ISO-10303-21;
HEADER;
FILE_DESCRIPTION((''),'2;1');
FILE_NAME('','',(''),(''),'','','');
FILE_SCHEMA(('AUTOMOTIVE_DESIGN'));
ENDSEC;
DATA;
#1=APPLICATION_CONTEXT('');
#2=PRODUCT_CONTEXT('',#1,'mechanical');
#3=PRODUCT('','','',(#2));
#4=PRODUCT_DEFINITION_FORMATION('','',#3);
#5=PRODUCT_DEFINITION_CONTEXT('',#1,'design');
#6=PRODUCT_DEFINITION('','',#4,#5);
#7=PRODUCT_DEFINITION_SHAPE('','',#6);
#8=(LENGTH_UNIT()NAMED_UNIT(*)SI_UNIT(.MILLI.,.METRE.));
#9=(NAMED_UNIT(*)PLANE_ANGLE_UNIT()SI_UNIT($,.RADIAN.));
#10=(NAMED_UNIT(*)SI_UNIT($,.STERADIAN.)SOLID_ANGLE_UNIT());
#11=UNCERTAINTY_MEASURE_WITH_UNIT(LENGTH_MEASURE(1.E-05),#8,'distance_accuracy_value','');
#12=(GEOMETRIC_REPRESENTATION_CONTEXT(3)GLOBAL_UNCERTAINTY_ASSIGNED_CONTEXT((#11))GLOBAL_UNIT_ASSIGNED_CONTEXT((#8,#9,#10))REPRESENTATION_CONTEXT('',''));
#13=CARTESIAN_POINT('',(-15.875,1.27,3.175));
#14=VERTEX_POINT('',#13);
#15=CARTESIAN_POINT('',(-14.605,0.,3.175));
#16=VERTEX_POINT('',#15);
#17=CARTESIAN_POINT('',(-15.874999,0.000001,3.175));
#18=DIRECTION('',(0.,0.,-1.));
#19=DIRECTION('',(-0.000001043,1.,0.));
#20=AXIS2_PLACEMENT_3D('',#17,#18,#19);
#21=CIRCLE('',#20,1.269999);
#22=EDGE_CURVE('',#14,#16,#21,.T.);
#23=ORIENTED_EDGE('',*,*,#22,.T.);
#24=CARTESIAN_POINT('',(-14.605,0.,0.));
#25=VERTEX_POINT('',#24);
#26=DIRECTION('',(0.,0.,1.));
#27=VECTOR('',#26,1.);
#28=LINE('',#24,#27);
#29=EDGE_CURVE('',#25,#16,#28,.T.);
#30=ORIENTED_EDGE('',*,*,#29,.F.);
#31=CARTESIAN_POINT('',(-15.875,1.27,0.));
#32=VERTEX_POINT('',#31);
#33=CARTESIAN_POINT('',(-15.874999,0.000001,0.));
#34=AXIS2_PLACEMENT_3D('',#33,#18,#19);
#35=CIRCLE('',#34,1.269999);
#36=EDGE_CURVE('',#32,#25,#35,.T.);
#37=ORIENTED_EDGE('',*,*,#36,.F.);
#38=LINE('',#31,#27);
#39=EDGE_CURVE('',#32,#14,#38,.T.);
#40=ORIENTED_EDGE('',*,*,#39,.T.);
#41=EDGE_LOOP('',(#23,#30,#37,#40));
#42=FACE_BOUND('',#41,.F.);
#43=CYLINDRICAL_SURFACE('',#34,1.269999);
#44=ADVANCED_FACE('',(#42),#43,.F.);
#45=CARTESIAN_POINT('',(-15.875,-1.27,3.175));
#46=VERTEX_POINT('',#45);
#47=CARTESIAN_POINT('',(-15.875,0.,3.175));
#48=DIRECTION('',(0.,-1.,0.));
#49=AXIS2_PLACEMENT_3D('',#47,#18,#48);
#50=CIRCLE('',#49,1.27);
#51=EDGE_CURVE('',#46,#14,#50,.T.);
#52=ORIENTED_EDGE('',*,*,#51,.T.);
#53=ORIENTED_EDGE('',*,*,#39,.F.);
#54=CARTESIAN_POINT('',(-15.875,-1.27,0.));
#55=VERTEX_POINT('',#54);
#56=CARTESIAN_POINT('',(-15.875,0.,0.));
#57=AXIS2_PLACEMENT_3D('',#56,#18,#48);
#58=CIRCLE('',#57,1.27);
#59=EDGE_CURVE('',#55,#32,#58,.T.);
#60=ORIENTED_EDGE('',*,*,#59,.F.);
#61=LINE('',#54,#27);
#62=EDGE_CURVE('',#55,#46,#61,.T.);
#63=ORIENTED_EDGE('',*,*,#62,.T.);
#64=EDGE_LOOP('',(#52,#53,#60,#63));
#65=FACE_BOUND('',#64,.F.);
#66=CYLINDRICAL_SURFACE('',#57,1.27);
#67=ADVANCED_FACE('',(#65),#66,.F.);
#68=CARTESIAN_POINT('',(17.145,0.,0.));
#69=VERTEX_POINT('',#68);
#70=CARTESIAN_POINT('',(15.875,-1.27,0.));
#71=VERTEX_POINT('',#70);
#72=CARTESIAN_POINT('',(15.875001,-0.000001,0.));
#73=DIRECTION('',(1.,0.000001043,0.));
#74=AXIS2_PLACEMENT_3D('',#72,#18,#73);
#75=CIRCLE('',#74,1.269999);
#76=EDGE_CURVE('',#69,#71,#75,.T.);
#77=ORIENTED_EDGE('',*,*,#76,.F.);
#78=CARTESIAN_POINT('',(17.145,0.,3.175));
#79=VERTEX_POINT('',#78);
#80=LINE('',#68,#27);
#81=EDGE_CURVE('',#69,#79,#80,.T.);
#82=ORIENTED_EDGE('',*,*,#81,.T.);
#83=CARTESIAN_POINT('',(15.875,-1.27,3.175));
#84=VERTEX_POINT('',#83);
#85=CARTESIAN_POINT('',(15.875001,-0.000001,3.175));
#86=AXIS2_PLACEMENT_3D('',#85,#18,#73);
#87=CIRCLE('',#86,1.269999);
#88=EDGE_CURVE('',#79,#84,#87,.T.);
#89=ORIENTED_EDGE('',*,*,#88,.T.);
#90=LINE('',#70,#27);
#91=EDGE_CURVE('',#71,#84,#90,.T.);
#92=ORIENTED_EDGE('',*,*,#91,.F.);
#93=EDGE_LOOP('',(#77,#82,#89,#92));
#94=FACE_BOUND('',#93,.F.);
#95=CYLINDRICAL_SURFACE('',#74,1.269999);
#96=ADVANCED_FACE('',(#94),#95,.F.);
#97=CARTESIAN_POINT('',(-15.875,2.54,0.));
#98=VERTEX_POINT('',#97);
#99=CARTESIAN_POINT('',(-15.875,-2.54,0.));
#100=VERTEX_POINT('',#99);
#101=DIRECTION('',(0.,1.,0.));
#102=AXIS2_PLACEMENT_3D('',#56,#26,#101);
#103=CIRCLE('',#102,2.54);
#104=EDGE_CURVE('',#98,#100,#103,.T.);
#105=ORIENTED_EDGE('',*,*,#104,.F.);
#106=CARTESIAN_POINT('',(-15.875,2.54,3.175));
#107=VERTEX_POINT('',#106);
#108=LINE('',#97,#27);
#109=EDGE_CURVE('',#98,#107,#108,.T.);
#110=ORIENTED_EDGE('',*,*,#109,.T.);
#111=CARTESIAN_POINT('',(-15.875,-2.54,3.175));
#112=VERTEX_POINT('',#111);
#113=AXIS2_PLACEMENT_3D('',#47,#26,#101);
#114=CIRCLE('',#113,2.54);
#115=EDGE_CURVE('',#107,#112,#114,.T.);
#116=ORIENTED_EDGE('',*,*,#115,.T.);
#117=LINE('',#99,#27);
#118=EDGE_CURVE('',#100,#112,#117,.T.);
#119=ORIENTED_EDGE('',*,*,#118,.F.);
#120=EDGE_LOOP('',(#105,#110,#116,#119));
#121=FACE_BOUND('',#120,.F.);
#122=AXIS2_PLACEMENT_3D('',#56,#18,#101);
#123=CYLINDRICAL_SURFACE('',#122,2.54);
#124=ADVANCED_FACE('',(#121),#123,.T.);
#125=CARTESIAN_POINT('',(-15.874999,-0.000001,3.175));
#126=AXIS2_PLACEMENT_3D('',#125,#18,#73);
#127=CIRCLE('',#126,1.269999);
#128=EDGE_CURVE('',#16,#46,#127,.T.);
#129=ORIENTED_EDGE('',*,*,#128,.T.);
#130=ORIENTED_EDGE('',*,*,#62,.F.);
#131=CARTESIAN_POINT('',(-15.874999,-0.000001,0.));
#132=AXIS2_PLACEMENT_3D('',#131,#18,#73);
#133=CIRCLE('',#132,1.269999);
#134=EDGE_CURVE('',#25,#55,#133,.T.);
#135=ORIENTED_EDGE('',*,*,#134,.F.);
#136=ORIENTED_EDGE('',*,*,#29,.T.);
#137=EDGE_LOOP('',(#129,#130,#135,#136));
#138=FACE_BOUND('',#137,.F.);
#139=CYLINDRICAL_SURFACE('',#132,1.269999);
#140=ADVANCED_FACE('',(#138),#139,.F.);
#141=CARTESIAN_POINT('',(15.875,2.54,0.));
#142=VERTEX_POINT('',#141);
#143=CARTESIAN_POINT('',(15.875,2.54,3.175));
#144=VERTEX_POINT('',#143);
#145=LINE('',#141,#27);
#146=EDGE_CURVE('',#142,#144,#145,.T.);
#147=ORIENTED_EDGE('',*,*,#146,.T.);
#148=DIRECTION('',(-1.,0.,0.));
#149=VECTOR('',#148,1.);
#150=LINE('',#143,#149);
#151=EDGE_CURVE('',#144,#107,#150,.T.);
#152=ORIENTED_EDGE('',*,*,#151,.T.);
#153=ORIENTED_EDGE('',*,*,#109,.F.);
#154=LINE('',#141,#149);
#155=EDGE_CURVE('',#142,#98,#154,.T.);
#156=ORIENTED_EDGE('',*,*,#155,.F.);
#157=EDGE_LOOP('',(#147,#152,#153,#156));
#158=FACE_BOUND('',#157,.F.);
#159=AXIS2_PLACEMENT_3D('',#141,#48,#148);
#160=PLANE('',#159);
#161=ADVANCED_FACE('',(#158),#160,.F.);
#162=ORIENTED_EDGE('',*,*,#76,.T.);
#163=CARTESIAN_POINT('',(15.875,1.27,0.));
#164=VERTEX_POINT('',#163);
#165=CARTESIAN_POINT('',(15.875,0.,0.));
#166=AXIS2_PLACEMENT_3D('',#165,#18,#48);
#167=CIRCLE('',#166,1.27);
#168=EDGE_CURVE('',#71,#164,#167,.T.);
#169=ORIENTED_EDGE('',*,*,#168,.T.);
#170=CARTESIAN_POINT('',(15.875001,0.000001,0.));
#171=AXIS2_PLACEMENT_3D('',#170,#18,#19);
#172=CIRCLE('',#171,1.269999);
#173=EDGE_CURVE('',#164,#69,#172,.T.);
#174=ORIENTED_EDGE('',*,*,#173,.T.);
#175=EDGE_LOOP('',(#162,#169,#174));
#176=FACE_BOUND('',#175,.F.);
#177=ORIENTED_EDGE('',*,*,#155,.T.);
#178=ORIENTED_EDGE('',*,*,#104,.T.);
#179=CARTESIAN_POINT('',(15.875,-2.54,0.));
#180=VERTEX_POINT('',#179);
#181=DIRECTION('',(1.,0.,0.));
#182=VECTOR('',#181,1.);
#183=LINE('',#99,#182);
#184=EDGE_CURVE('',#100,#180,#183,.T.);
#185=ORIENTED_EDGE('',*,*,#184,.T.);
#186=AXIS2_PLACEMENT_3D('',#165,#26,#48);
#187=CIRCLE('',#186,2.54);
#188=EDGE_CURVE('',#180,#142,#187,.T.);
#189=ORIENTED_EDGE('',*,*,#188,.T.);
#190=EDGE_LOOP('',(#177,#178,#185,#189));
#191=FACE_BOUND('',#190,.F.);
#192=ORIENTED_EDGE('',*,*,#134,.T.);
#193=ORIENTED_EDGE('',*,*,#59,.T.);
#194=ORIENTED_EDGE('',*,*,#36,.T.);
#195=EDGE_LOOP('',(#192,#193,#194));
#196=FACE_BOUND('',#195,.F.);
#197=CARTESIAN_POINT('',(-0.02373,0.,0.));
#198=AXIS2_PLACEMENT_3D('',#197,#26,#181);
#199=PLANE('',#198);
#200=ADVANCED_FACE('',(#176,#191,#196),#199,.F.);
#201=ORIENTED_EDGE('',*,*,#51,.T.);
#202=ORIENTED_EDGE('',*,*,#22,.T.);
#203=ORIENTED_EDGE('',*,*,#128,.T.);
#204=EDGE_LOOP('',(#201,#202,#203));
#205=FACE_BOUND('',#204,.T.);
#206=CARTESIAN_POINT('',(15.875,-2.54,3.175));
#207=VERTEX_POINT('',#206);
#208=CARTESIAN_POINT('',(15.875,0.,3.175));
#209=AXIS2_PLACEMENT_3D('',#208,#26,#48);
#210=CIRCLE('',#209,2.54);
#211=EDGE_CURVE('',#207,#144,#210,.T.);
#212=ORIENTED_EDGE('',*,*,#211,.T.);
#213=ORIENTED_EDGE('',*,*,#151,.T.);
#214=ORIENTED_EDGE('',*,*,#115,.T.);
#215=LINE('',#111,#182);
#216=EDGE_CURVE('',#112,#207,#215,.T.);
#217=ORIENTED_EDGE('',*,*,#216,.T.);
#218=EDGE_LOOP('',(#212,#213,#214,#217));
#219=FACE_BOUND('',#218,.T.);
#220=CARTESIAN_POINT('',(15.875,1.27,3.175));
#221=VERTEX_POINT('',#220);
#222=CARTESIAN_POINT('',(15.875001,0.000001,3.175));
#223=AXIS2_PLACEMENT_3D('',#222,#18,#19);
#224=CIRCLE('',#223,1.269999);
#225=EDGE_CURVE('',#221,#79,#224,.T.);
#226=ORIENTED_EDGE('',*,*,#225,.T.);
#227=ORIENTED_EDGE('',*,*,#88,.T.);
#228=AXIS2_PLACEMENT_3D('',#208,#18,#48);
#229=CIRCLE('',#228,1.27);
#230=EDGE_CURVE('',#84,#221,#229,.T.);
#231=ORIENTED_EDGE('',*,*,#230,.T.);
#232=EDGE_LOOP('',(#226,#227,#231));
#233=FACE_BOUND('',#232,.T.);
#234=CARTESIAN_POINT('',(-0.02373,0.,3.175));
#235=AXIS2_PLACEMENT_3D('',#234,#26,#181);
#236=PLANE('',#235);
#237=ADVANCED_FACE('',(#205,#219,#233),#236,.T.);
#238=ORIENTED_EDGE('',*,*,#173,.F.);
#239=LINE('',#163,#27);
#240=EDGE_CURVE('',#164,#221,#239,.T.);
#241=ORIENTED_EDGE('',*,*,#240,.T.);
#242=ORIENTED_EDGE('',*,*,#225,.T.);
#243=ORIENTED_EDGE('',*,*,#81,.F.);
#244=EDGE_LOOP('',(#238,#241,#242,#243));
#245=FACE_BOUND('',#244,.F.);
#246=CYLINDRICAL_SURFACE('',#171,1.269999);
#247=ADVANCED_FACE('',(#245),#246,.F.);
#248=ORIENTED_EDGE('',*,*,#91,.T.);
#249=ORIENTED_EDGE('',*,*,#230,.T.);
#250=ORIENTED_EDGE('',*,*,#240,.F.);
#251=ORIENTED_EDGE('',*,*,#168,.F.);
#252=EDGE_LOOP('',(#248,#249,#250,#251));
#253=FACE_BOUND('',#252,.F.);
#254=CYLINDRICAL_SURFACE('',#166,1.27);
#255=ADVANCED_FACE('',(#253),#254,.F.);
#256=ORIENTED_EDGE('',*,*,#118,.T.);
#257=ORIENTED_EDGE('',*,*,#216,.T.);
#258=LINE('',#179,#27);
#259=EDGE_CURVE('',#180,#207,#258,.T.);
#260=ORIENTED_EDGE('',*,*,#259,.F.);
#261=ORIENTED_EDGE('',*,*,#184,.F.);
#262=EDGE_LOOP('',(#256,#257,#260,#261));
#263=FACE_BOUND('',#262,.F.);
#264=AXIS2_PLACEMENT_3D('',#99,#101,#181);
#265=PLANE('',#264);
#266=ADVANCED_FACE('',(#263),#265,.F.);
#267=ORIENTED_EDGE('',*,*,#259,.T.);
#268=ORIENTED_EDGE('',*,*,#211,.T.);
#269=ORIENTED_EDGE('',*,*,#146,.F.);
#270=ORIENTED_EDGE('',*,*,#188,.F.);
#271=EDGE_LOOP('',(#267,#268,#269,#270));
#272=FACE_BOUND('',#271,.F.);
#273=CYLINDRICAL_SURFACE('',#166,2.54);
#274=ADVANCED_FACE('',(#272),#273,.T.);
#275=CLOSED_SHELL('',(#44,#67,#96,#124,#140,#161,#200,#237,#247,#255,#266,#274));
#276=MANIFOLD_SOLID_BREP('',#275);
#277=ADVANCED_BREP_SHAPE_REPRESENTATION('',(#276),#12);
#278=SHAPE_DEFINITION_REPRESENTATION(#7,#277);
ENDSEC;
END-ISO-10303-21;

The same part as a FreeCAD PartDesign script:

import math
import FreeCAD as App
import Part
import Sketcher
from FreeCAD import Vector
Q = App.Units.Quantity

doc = App.newDocument("Part")
body = doc.addObject("PartDesign::Body", "Body")

sketch1 = doc.addObject("Sketcher::SketchObject", "Sketch")
body.addObject(sketch1)
sketch1.AttachmentSupport = (doc.XY_Plane, [""])
sketch1.MapMode = "FlatFace"
sketch1.addGeometry(Part.LineSegment(Vector(15.875, 2.54, 0), Vector(-15.875, 2.54, 0)), False)
sketch1.addGeometry(Part.ArcOfCircle(Part.Circle(Vector(-15.875, 0, 0), Vector(0, 0, 1), 2.54), math.radians(90), math.radians(270)), False)
sketch1.addGeometry(Part.LineSegment(Vector(-15.875, -2.54, 0), Vector(15.875, -2.54, 0)), False)
sketch1.addGeometry(Part.ArcOfCircle(Part.Circle(Vector(15.875, 0, 0), Vector(0, 0, 1), 2.54), math.radians(-90), math.radians(90)), False)
sketch1.addGeometry(Part.ArcOfCircle(Part.Circle(Vector(-15.874999, 0.000001, 0), Vector(0, 0, 1), 1.269999), math.radians(-0.00006), math.radians(90.00006)), False)
sketch1.addGeometry(Part.ArcOfCircle(Part.Circle(Vector(-15.874999, -0.000001, 0), Vector(0, 0, 1), 1.269999), math.radians(-90.00006), math.radians(0.00006)), False)
sketch1.addGeometry(Part.ArcOfCircle(Part.Circle(Vector(-15.875, 0, 0), Vector(0, 0, 1), 1.27), math.radians(90), math.radians(270)), False)
sketch1.addGeometry(Part.ArcOfCircle(Part.Circle(Vector(15.875, 0, 0), Vector(0, 0, 1), 1.27), math.radians(90), math.radians(270)), False)
sketch1.addGeometry(Part.ArcOfCircle(Part.Circle(Vector(15.875001, 0.000001, 0), Vector(0, 0, 1), 1.269999), math.radians(-0.00006), math.radians(90.00006)), False)
sketch1.addGeometry(Part.ArcOfCircle(Part.Circle(Vector(15.875001, -0.000001, 0), Vector(0, 0, 1), 1.269999), math.radians(-90.00006), math.radians(0.00006)), False)
sketch1.addConstraint(Sketcher.Constraint("Tangent", 0, 2, 1, 1))
sketch1.addConstraint(Sketcher.Constraint("Tangent", 1, 2, 2, 1))
sketch1.addConstraint(Sketcher.Constraint("Tangent", 2, 2, 3, 1))
sketch1.addConstraint(Sketcher.Constraint("Tangent", 3, 2, 0, 1))
sketch1.addConstraint(Sketcher.Constraint("Coincident", 4, 1, 5, 2))
sketch1.addConstraint(Sketcher.Constraint("Tangent", 5, 1, 6, 2))
sketch1.addConstraint(Sketcher.Constraint("Tangent", 6, 1, 4, 2))
sketch1.addConstraint(Sketcher.Constraint("Tangent", 7, 1, 8, 2))
sketch1.addConstraint(Sketcher.Constraint("Coincident", 8, 1, 9, 2))
sketch1.addConstraint(Sketcher.Constraint("Tangent", 9, 1, 7, 2))
sketch1.addConstraint(Sketcher.Constraint("Horizontal", 0))
sketch1.addConstraint(Sketcher.Constraint("Horizontal", 2))
sketch1.addConstraint(Sketcher.Constraint("Coincident", 4, 3, 1, 3))
sketch1.addConstraint(Sketcher.Constraint("Coincident", 7, 3, 3, 3))
sketch1.addConstraint(Sketcher.Constraint("Equal", 5, 6))
sketch1.addConstraint(Sketcher.Constraint("Equal", 6, 7))
sketch1.addConstraint(Sketcher.Constraint("Equal", 7, 8))
sketch1.addConstraint(Sketcher.Constraint("Symmetric", 1, 3, 3, 3, -1, 1))
sketch1.addConstraint(Sketcher.Constraint("PointOnObject", 4, 1, -1))
sketch1.addConstraint(Sketcher.Constraint("PointOnObject", 8, 1, -1))
sketch1.addConstraint(Sketcher.Constraint("Vertical", 1, 2, 5, 1))
sketch1.addConstraint(Sketcher.Constraint("Vertical", 5, 1, 6, 1))
sketch1.addConstraint(Sketcher.Constraint("Vertical", 3, 2, 7, 1))
sketch1.addConstraint(Sketcher.Constraint("Vertical", 7, 1, 9, 1))
sketch1.addConstraint(Sketcher.Constraint("Radius", 1, Q("0.1 in")))
sketch1.addConstraint(Sketcher.Constraint("Radius", 4, Q("0.0499999 in")))
sketch1.addConstraint(Sketcher.Constraint("DistanceX", 0, 2, 0, 1, Q("1.25 in")))
pad1 = doc.addObject("PartDesign::Pad", "Pad")
body.addObject(pad1)
pad1.Profile = sketch1
pad1.Length = Q("0.125 in")

doc.recompute()
